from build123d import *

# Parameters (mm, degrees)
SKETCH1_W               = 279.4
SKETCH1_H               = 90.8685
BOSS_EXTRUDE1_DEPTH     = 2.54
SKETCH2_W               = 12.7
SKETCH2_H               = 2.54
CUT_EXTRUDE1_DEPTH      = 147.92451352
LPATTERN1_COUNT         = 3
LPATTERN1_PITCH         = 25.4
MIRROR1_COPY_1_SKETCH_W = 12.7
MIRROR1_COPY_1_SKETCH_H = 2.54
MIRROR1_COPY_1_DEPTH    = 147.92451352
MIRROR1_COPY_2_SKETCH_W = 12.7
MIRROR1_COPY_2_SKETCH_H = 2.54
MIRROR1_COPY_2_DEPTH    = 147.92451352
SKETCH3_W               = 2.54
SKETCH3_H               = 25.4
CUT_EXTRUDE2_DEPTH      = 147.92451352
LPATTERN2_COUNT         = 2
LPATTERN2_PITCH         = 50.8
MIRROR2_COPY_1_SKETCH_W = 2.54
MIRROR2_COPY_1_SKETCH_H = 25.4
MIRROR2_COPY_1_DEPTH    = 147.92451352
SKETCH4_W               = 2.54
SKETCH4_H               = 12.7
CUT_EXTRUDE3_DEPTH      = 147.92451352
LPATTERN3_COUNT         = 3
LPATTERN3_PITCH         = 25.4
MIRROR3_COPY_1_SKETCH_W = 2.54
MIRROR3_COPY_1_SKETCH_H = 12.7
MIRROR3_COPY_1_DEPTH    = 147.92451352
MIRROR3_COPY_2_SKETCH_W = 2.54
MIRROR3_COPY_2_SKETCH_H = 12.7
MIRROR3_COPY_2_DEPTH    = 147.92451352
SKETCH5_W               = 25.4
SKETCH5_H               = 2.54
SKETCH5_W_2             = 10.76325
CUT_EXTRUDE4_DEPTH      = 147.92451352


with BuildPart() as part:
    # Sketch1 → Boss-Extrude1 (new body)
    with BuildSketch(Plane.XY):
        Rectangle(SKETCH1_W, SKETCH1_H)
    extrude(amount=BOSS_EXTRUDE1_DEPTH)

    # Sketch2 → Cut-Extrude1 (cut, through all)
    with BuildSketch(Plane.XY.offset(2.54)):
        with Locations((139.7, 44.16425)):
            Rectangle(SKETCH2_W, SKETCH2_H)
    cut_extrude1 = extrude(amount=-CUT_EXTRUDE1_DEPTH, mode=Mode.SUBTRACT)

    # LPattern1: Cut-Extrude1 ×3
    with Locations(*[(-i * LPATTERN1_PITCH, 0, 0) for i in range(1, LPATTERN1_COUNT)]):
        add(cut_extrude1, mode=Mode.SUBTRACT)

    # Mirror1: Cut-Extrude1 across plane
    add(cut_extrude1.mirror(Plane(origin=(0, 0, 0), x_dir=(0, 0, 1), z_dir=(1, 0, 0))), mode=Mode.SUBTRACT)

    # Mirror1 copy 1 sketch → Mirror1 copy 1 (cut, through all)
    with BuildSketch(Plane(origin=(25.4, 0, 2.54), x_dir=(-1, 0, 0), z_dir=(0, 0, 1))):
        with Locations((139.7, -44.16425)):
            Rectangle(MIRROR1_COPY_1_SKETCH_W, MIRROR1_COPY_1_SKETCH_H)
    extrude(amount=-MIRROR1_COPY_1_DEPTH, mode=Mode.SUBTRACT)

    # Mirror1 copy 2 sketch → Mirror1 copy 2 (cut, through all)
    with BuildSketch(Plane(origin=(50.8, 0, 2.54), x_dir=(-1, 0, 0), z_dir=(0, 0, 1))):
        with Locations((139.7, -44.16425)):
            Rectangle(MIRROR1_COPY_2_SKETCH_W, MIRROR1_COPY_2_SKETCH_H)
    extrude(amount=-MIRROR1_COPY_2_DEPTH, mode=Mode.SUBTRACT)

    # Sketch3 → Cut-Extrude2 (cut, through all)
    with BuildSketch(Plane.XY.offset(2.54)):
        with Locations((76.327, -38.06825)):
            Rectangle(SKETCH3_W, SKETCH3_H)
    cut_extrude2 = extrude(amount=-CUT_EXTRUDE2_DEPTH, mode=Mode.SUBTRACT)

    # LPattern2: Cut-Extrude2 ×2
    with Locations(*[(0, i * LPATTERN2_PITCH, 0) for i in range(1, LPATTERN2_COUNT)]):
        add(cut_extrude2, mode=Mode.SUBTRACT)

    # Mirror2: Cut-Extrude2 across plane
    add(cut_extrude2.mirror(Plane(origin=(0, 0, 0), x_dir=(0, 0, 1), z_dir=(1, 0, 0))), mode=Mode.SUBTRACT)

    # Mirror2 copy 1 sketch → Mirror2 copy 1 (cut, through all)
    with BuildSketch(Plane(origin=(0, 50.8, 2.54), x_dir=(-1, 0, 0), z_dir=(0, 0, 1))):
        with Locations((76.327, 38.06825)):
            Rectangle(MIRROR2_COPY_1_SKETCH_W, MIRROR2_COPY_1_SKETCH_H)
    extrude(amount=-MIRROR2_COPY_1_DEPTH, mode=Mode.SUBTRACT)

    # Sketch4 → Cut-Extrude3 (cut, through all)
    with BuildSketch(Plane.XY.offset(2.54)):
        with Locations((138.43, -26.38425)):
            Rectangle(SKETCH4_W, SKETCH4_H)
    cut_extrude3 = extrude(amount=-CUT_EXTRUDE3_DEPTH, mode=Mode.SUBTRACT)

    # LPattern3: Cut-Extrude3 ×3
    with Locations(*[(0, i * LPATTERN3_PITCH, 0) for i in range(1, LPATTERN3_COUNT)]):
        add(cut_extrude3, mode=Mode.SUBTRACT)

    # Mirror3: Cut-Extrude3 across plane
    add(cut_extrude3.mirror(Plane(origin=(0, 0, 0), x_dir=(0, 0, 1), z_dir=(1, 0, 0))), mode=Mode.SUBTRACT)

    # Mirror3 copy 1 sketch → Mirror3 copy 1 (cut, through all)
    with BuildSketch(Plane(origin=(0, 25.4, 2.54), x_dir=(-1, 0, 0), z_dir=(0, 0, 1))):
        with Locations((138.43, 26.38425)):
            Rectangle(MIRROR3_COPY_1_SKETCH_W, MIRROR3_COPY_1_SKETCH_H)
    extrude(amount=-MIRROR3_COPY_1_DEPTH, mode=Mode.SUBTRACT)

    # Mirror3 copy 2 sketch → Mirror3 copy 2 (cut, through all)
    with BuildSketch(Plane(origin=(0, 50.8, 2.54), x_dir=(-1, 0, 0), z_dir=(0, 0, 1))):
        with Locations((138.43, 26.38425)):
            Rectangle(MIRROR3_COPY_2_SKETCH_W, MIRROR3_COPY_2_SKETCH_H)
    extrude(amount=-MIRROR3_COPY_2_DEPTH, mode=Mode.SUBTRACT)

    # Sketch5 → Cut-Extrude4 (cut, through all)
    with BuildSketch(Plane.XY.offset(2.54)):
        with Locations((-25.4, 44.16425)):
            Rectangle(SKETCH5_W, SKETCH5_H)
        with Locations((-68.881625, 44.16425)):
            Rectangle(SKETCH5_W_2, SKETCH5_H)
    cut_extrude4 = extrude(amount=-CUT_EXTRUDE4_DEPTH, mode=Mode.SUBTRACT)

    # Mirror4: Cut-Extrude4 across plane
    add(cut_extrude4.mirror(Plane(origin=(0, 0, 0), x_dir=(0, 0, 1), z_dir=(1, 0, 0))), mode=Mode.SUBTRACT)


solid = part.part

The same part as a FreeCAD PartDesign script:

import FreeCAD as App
import Part
import Sketcher

V = App.Vector
Q = App.Units.Quantity

doc = App.newDocument("Part")
params = doc.addObject("Spreadsheet::Sheet", "Params")
for row, (alias, value) in enumerate([
    ("sketch1_width", "11 in"),
    ("pad1_length", "0.1 in"),
    ("sketch2_width", "0.5 in"),
    ("sketch2_height", "0.1 in"),
    ("linearpattern_pitch", "1 in"),
    ("sketch3_width", "0.5 in"),
    ("sketch3_height", "0.1 in"),
    ("sketch4_width", "0.5 in"),
    ("sketch4_height", "0.1 in"),
    ("sketch5_height", "1 in"),
    ("sketch5_width", "0.1 in"),
    ("linearpattern2_pitch", "2 in"),
    ("sketch6_height", "1 in"),
    ("sketch6_width", "0.1 in"),
    ("sketch7_width", "0.1 in"),
    ("sketch7_height", "0.5 in"),
    ("linearpattern3_pitch", "1 in"),
    ("sketch8_width", "0.1 in"),
    ("sketch8_height", "0.5 in"),
    ("sketch9_width", "0.1 in"),
    ("sketch9_height", "0.5 in"),
    ("sketch10_width", "1 in"),
    ("sketch10_height", "0.1 in"),
], start=1):
    params.set(f"A{row}", alias)
    params.set(f"B{row}", "=" + value)
    params.setAlias(f"B{row}", alias)

body = doc.addObject("PartDesign::Body", "Body")

# Sketch on XY plane
sketch1 = body.newObject("Sketcher::SketchObject", "Sketch")
sketch1.AttachmentSupport = (doc.getObject("XY_Plane"), [""])
sketch1.MapMode = "FlatFace"
sketch1.addGeometry(Part.LineSegment(V(-140, 45, 0), V(-140, -45, 0)), False)
sketch1.addGeometry(Part.LineSegment(V(-140, -45, 0), V(140, -45, 0)), False)
sketch1.addGeometry(Part.LineSegment(V(140, -45, 0), V(140, 45, 0)), False)
sketch1.addGeometry(Part.LineSegment(V(140, 45, 0), V(-140, 45, 0)), False)
sketch1.addConstraint(Sketcher.Constraint("Coincident", 0, 2, 1, 1))
sketch1.addConstraint(Sketcher.Constraint("Coincident", 1, 2, 2, 1))
sketch1.addConstraint(Sketcher.Constraint("Coincident", 2, 2, 3, 1))
sketch1.addConstraint(Sketcher.Constraint("Coincident", 3, 2, 0, 1))
sketch1.addConstraint(Sketcher.Constraint("Vertical", 0))
sketch1.addConstraint(Sketcher.Constraint("Horizontal", 1))
sketch1.addConstraint(Sketcher.Constraint("Vertical", 2))
sketch1.addConstraint(Sketcher.Constraint("Horizontal", 3))
sketch1.addConstraint(Sketcher.Constraint("Symmetric", 0, 2, 2, 2, -1, 1))
sketch1.addConstraint(Sketcher.Constraint("DistanceX", 1, 1, 1, 2, Q("11 in")))
sketch1.addConstraint(Sketcher.Constraint("DistanceY", 0, 2, 0, 1, Q("3.5775 in")))
sketch1.setExpression("Constraints[9]", "Params.sketch1_width")
pad1 = body.newObject("PartDesign::Pad", "Pad")
pad1.Profile = sketch1
pad1.setExpression("Length", "Params.pad1_length")

# Sketch on XY plane
sketch2 = body.newObject("Sketcher::SketchObject", "Sketch001")
sketch2.AttachmentSupport = (doc.getObject("XY_Plane"), [""])
sketch2.MapMode = "FlatFace"
sketch2.AttachmentOffset = App.Placement(V(0, 0, 0.1 * 25.4), App.Rotation())
sketch2.addGeometry(Part.LineSegment(V(133.3, 45.4, 0), V(133.3, 42.9, 0)), False)
sketch2.addGeometry(Part.LineSegment(V(133.3, 42.9, 0), V(146.1, 42.9, 0)), False)
sketch2.addGeometry(Part.LineSegment(V(146.1, 42.9, 0), V(146.1, 45.4, 0)), False)
sketch2.addGeometry(Part.LineSegment(V(146.1, 45.4, 0), V(133.3, 45.4, 0)), False)
sketch2.addConstraint(Sketcher.Constraint("Coincident", 0, 2, 1, 1))
sketch2.addConstraint(Sketcher.Constraint("Coincident", 1, 2, 2, 1))
sketch2.addConstraint(Sketcher.Constraint("Coincident", 2, 2, 3, 1))
sketch2.addConstraint(Sketcher.Constraint("Coincident", 3, 2, 0, 1))
sketch2.addConstraint(Sketcher.Constraint("Vertical", 0))
sketch2.addConstraint(Sketcher.Constraint("Horizontal", 1))
sketch2.addConstraint(Sketcher.Constraint("Vertical", 2))
sketch2.addConstraint(Sketcher.Constraint("Horizontal", 3))
sketch2.addConstraint(Sketcher.Constraint("DistanceX", 1, 1, 1, 2, Q("0.5 in")))
sketch2.addConstraint(Sketcher.Constraint("DistanceY", 0, 2, 0, 1, Q("0.1 in")))
sketch2.addConstraint(Sketcher.Constraint("DistanceX", -1, 1, 0, 2, Q("5.25 in")))
sketch2.addConstraint(Sketcher.Constraint("DistanceY", -1, 1, 0, 2, Q("42.89425 mm")))
sketch2.setExpression("Constraints[8]", "Params.sketch2_width")
sketch2.setExpression("Constraints[9]", "Params.sketch2_height")
pocket1 = body.newObject("PartDesign::Pocket", "Pocket")
pocket1.Profile = sketch2
pocket1.Type = "ThroughAll"
doc.recompute()

linearpattern = body.newObject("PartDesign::LinearPattern", "LinearPattern")
linearpattern.Originals = [pocket1]
linearpattern.Direction = (doc.getObject("X_Axis"), [""])
linearpattern.Mode = "offset"
linearpattern.setExpression("Offset", "Params.linearpattern_pitch")
linearpattern.Occurrences = 3
linearpattern.Reversed = True
body.Tip = linearpattern
doc.recompute()

mirrored = body.newObject("PartDesign::Mirrored", "Mirrored")
mirrored.Originals = [pocket1]
mirrored.MirrorPlane = (doc.getObject("YZ_Plane"), [""])
body.Tip = mirrored

# Sketch on XY plane
sketch3 = body.newObject("Sketcher::SketchObject", "Sketch002")
sketch3.AttachmentSupport = (doc.getObject("XY_Plane"), [""])
sketch3.MapMode = "FlatFace"
sketch3.AttachmentOffset = App.Placement(V(0, 0, 0.1 * 25.4), App.Rotation())
sketch3.addGeometry(Part.LineSegment(V(-108, 42.9, 0), V(-108, 45.4, 0)), False)
sketch3.addGeometry(Part.LineSegment(V(-108, 45.4, 0), V(-120.7, 45.4, 0)), False)
sketch3.addGeometry(Part.LineSegment(V(-120.7, 45.4, 0), V(-120.7, 42.9, 0)), False)
sketch3.addGeometry(Part.LineSegment(V(-120.7, 42.9, 0), V(-108, 42.9, 0)), False)
sketch3.addConstraint(Sketcher.Constraint("Coincident", 0, 2, 1, 1))
sketch3.addConstraint(Sketcher.Constraint("Coincident", 1, 2, 2, 1))
sketch3.addConstraint(Sketcher.Constraint("Coincident", 2, 2, 3, 1))
sketch3.addConstraint(Sketcher.Constraint("Coincident", 3, 2, 0, 1))
sketch3.addConstraint(Sketcher.Constraint("Vertical", 0))
sketch3.addConstraint(Sketcher.Constraint("Horizontal", 1))
sketch3.addConstraint(Sketcher.Constraint("Vertical", 2))
sketch3.addConstraint(Sketcher.Constraint("Horizontal", 3))
sketch3.addConstraint(Sketcher.Constraint("DistanceX", 1, 2, 1, 1, Q("0.5 in")))
sketch3.addConstraint(Sketcher.Constraint("DistanceY", 0, 1, 0, 2, Q("0.1 in")))
sketch3.addConstraint(Sketcher.Constraint("DistanceX", 0, 2, -1, 1, Q("4.25 in")))
sketch3.addConstraint(Sketcher.Constraint("DistanceY", -1, 1, 0, 2, Q("45.43425 mm")))
sketch3.setExpression("Constraints[8]", "Params.sketch3_width")
sketch3.setExpression("Constraints[9]", "Params.sketch3_height")
pocket2 = body.newObject("PartDesign::Pocket", "Pocket001")
pocket2.Profile = sketch3
pocket2.Type = "ThroughAll"

# Sketch on XY plane
sketch4 = body.newObject("Sketcher::SketchObject", "Sketch003")
sketch4.AttachmentSupport = (doc.getObject("XY_Plane"), [""])
sketch4.MapMode = "FlatFace"
sketch4.AttachmentOffset = App.Placement(V(0, 0, 0.1 * 25.4), App.Rotation())
sketch4.addGeometry(Part.LineSegment(V(-82.5, 42.9, 0), V(-82.5, 45.4, 0)), False)
sketch4.addGeometry(Part.LineSegment(V(-82.5, 45.4, 0), V(-95.2, 45.4, 0)), False)
sketch4.addGeometry(Part.LineSegment(V(-95.2, 45.4, 0), V(-95.2, 42.9, 0)), False)
sketch4.addGeometry(Part.LineSegment(V(-95.2, 42.9, 0), V(-82.5, 42.9, 0)), False)
sketch4.addConstraint(Sketcher.Constraint("Coincident", 0, 2, 1, 1))
sketch4.addConstraint(Sketcher.Constraint("Coincident", 1, 2, 2, 1))
sketch4.addConstraint(Sketcher.Constraint("Coincident", 2, 2, 3, 1))
sketch4.addConstraint(Sketcher.Constraint("Coincident", 3, 2, 0, 1))
sketch4.addConstraint(Sketcher.Constraint("Vertical", 0))
sketch4.addConstraint(Sketcher.Constraint("Horizontal", 1))
sketch4.addConstraint(Sketcher.Constraint("Vertical", 2))
sketch4.addConstraint(Sketcher.Constraint("Horizontal", 3))
sketch4.addConstraint(Sketcher.Constraint("DistanceX", 1, 2, 1, 1, Q("0.5 in")))
sketch4.addConstraint(Sketcher.Constraint("DistanceY", 0, 1, 0, 2, Q("0.1 in")))
sketch4.addConstraint(Sketcher.Constraint("DistanceX", 0, 2, -1, 1, Q("3.25 in")))
sketch4.addConstraint(Sketcher.Constraint("DistanceY", -1, 1, 0, 2, Q("45.43425 mm")))
sketch4.setExpression("Constraints[8]", "Params.sketch4_width")
sketch4.setExpression("Constraints[9]", "Params.sketch4_height")
pocket3 = body.newObject("PartDesign::Pocket", "Pocket002")
pocket3.Profile = sketch4
pocket3.Type = "ThroughAll"

# Sketch on XY plane
sketch5 = body.newObject("Sketcher::SketchObject", "Sketch004")
sketch5.AttachmentSupport = (doc.getObject("XY_Plane"), [""])
sketch5.MapMode = "FlatFace"
sketch5.AttachmentOffset = App.Placement(V(0, 0, 0.1 * 25.4), App.Rotation())
sketch5.addGeometry(Part.LineSegment(V(75.1, -25.4, 0), V(75.1, -50.8, 0)), False)
sketch5.addGeometry(Part.LineSegment(V(75.1, -50.8, 0), V(77.6, -50.8, 0)), False)
sketch5.addGeometry(Part.LineSegment(V(77.6, -50.8, 0), V(77.6, -25.4, 0)), False)
sketch5.addGeometry(Part.LineSegment(V(77.6, -25.4, 0), V(75.1, -25.4, 0)), False)
sketch5.addConstraint(Sketcher.Constraint("Coincident", 0, 2, 1, 1))
sketch5.addConstraint(Sketcher.Constraint("Coincident", 1, 2, 2, 1))
sketch5.addConstraint(Sketcher.Constraint("Coincident", 2, 2, 3, 1))
sketch5.addConstraint(Sketcher.Constraint("Coincident", 3, 2, 0, 1))
sketch5.addConstraint(Sketcher.Constraint("Vertical", 0))
sketch5.addConstraint(Sketcher.Constraint("Horizontal", 1))
sketch5.addConstraint(Sketcher.Constraint("Vertical", 2))
sketch5.addConstraint(Sketcher.Constraint("Horizontal", 3))
sketch5.addConstraint(Sketcher.Constraint("DistanceY", 0, 2, 0, 1, Q("1 in")))
sketch5.addConstraint(Sketcher.Constraint("DistanceX", 1, 1, 1, 2, Q("0.1 in")))
sketch5.addConstraint(Sketcher.Constraint("DistanceX", -1, 1, 0, 2, Q("2.955 in")))
sketch5.addConstraint(Sketcher.Constraint("DistanceY", 0, 2, -1, 1, Q("50.76825 mm")))
sketch5.setExpression("Constraints[8]", "Params.sketch5_height")
sketch5.setExpression("Constraints[9]", "Params.sketch5_width")
pocket4 = body.newObject("PartDesign::Pocket", "Pocket003")
pocket4.Profile = sketch5
pocket4.Type = "ThroughAll"
doc.recompute()

linearpattern2 = body.newObject("PartDesign::LinearPattern", "LinearPattern001")
linearpattern2.Originals = [pocket4]
linearpattern2.Direction = (doc.getObject("Y_Axis"), [""])
linearpattern2.Mode = "offset"
linearpattern2.setExpression("Offset", "Params.linearpattern2_pitch")
linearpattern2.Occurrences = 2
body.Tip = linearpattern2
doc.recompute()

mirrored2 = body.newObject("PartDesign::Mirrored", "Mirrored001")
mirrored2.Originals = [pocket4]
mirrored2.MirrorPlane = (doc.getObject("YZ_Plane"), [""])
body.Tip = mirrored2

# Sketch on XY plane
sketch6 = body.newObject("Sketcher::SketchObject", "Sketch005")
sketch6.AttachmentSupport = (doc.getObject("XY_Plane"), [""])
sketch6.MapMode = "FlatFace"
sketch6.AttachmentOffset = App.Placement(V(0, 0, 0.1 * 25.4), App.Rotation())
sketch6.addGeometry(Part.LineSegment(V(-75.1, 0, 0), V(-75.1, 25.4, 0)), False)
sketch6.addGeometry(Part.LineSegment(V(-75.1, 25.4, 0), V(-77.6, 25.4, 0)), False)
sketch6.addGeometry(Part.LineSegment(V(-77.6, 25.4, 0), V(-77.6, 0, 0)), False)
sketch6.addGeometry(Part.LineSegment(V(-77.6, 0, 0), V(-75.1, 0, 0)), False)
sketch6.addConstraint(Sketcher.Constraint("Coincident", 0, 2, 1, 1))
sketch6.addConstraint(Sketcher.Constraint("Coincident", 1, 2, 2, 1))
sketch6.addConstraint(Sketcher.Constraint("Coincident", 2, 2, 3, 1))
sketch6.addConstraint(Sketcher.Constraint("Coincident", 3, 2, 0, 1))
sketch6.addConstraint(Sketcher.Constraint("Vertical", 0))
sketch6.addConstraint(Sketcher.Constraint("Horizontal", 1))
sketch6.addConstraint(Sketcher.Constraint("Vertical", 2))
sketch6.addConstraint(Sketcher.Constraint("Horizontal", 3))
sketch6.addConstraint(Sketcher.Constraint("DistanceY", 0, 1, 0, 2, Q("1 in")))
sketch6.addConstraint(Sketcher.Constraint("DistanceX", 1, 2, 1, 1, Q("0.1 in")))
sketch6.addConstraint(Sketcher.Constraint("DistanceX", 0, 2, -1, 1, Q("2.955 in")))
sketch6.addConstraint(Sketcher.Constraint("DistanceY", -1, 1, 0, 2, Q("25.43175 mm")))
sketch6.setExpression("Constraints[8]", "Params.sketch6_height")
sketch6.setExpression("Constraints[9]", "Params.sketch6_width")
pocket5 = body.newObject("PartDesign::Pocket", "Pocket004")
pocket5.Profile = sketch6
pocket5.Type = "ThroughAll"

# Sketch on XY plane
sketch7 = body.newObject("Sketcher::SketchObject", "Sketch006")
sketch7.AttachmentSupport = (doc.getObject("XY_Plane"), [""])
sketch7.MapMode = "FlatFace"
sketch7.AttachmentOffset = App.Placement(V(0, 0, 0.1 * 25.4), App.Rotation())
sketch7.addGeometry(Part.LineSegment(V(137.2, -20, 0), V(137.2, -32.7, 0)), False)
sketch7.addGeometry(Part.LineSegment(V(137.2, -32.7, 0), V(139.7, -32.7, 0)), False)
sketch7.addGeometry(Part.LineSegment(V(139.7, -32.7, 0), V(139.7, -20, 0)), False)
sketch7.addGeometry(Part.LineSegment(V(139.7, -20, 0), V(137.2, -20, 0)), False)
sketch7.addConstraint(Sketcher.Constraint("Coincident", 0, 2, 1, 1))
sketch7.addConstraint(Sketcher.Constraint("Coincident", 1, 2, 2, 1))
sketch7.addConstraint(Sketcher.Constraint("Coincident", 2, 2, 3, 1))
sketch7.addConstraint(Sketcher.Constraint("Coincident", 3, 2, 0, 1))
sketch7.addConstraint(Sketcher.Constraint("Vertical", 0))
sketch7.addConstraint(Sketcher.Constraint("Horizontal", 1))
sketch7.addConstraint(Sketcher.Constraint("Vertical", 2))
sketch7.addConstraint(Sketcher.Constraint("Horizontal", 3))
sketch7.addConstraint(Sketcher.Constraint("DistanceX", 1, 1, 1, 2, Q("0.1 in")))
sketch7.addConstraint(Sketcher.Constraint("DistanceY", 0, 2, 0, 1, Q("0.5 in")))
sketch7.addConstraint(Sketcher.Constraint("DistanceX", -1, 1, 0, 2, Q("5.4 in")))
sketch7.addConstraint(Sketcher.Constraint("DistanceY", 0, 2, -1, 1, Q("32.73425 mm")))
sketch7.setExpression("Constraints[8]", "Params.sketch7_width")
sketch7.setExpression("Constraints[9]", "Params.sketch7_height")
pocket6 = body.newObject("PartDesign::Pocket", "Pocket005")
pocket6.Profile = sketch7
pocket6.Type = "ThroughAll"
doc.recompute()

linearpattern3 = body.newObject("PartDesign::LinearPattern", "LinearPattern002")
linearpattern3.Originals = [pocket6]
linearpattern3.Direction = (doc.getObject("Y_Axis"), [""])
linearpattern3.Mode = "offset"
linearpattern3.setExpression("Offset", "Params.linearpattern3_pitch")
linearpattern3.Occurrences = 3
body.Tip = linearpattern3
doc.recompute()

mirrored3 = body.newObject("PartDesign::Mirrored", "Mirrored002")
mirrored3.Originals = [pocket6]
mirrored3.MirrorPlane = (doc.getObject("YZ_Plane"), [""])
body.Tip = mirrored3

# Sketch on XY plane
sketch8 = body.newObject("Sketcher::SketchObject", "Sketch007")
sketch8.AttachmentSupport = (doc.getObject("XY_Plane"), [""])
sketch8.MapMode = "FlatFace"
sketch8.AttachmentOffset = App.Placement(V(0, 0, 0.1 * 25.4), App.Rotation())
sketch8.addGeometry(Part.LineSegment(V(-137.2, -7.3, 0), V(-137.2, 5.4, 0)), False)
sketch8.addGeometry(Part.LineSegment(V(-137.2, 5.4, 0), V(-139.7, 5.4, 0)), False)
sketch8.addGeometry(Part.LineSegment(V(-139.7, 5.4, 0), V(-139.7, -7.3, 0)), False)
sketch8.addGeometry(Part.LineSegment(V(-139.7, -7.3, 0), V(-137.2, -7.3, 0)), False)
sketch8.addConstraint(Sketcher.Constraint("Coincident", 0, 2, 1, 1))
sketch8.addConstraint(Sketcher.Constraint("Coincident", 1, 2, 2, 1))
sketch8.addConstraint(Sketcher.Constraint("Coincident", 2, 2, 3, 1))
sketch8.addConstraint(Sketcher.Constraint("Coincident", 3, 2, 0, 1))
sketch8.addConstraint(Sketcher.Constraint("Vertical", 0))
sketch8.addConstraint(Sketcher.Constraint("Horizontal", 1))
sketch8.addConstraint(Sketcher.Constraint("Vertical", 2))
sketch8.addConstraint(Sketcher.Constraint("Horizontal", 3))
sketch8.addConstraint(Sketcher.Constraint("DistanceX", 1, 2, 1, 1, Q("0.1 in")))
sketch8.addConstraint(Sketcher.Constraint("DistanceY", 0, 1, 0, 2, Q("0.5 in")))
sketch8.addConstraint(Sketcher.Constraint("DistanceX", 0, 2, -1, 1, Q("5.4 in")))
sketch8.addConstraint(Sketcher.Constraint("DistanceY", -1, 1, 0, 2, Q("5.36575 mm")))
sketch8.setExpression("Constraints[8]", "Params.sketch8_width")
sketch8.setExpression("Constraints[9]", "Params.sketch8_height")
pocket7 = body.newObject("PartDesign::Pocket", "Pocket006")
pocket7.Profile = sketch8
pocket7.Type = "ThroughAll"

# Sketch on XY plane
sketch9 = body.newObject("Sketcher::SketchObject", "Sketch008")
sketch9.AttachmentSupport = (doc.getObject("XY_Plane"), [""])
sketch9.MapMode = "FlatFace"
sketch9.AttachmentOffset = App.Placement(V(0, 0, 0.1 * 25.4), App.Rotation())
sketch9.addGeometry(Part.LineSegment(V(-137.2, 18.1, 0), V(-137.2, 30.8, 0)), False)
sketch9.addGeometry(Part.LineSegment(V(-137.2, 30.8, 0), V(-139.7, 30.8, 0)), False)
sketch9.addGeometry(Part.LineSegment(V(-139.7, 30.8, 0), V(-139.7, 18.1, 0)), False)
sketch9.addGeometry(Part.LineSegment(V(-139.7, 18.1, 0), V(-137.2, 18.1, 0)), False)
sketch9.addConstraint(Sketcher.Constraint("Coincident", 0, 2, 1, 1))
sketch9.addConstraint(Sketcher.Constraint("Coincident", 1, 2, 2, 1))
sketch9.addConstraint(Sketcher.Constraint("Coincident", 2, 2, 3, 1))
sketch9.addConstraint(Sketcher.Constraint("Coincident", 3, 2, 0, 1))
sketch9.addConstraint(Sketcher.Constraint("Vertical", 0))
sketch9.addConstraint(Sketcher.Constraint("Horizontal", 1))
sketch9.addConstraint(Sketcher.Constraint("Vertical", 2))
sketch9.addConstraint(Sketcher.Constraint("Horizontal", 3))
sketch9.addConstraint(Sketcher.Constraint("DistanceX", 1, 2, 1, 1, Q("0.1 in")))
sketch9.addConstraint(Sketcher.Constraint("DistanceY", 0, 1, 0, 2, Q("0.5 in")))
sketch9.addConstraint(Sketcher.Constraint("DistanceX", 0, 2, -1, 1, Q("5.4 in")))
sketch9.addConstraint(Sketcher.Constraint("DistanceY", -1, 1, 0, 2, Q("30.76575 mm")))
sketch9.setExpression("Constraints[8]", "Params.sketch9_width")
sketch9.setExpression("Constraints[9]", "Params.sketch9_height")
pocket8 = body.newObject("PartDesign::Pocket", "Pocket007")
pocket8.Profile = sketch9
pocket8.Type = "ThroughAll"

# Sketch on XY plane
sketch10 = body.newObject("Sketcher::SketchObject", "Sketch009")
sketch10.AttachmentSupport = (doc.getObject("XY_Plane"), [""])
sketch10.MapMode = "FlatFace"
sketch10.AttachmentOffset = App.Placement(V(0, 0, 0.1 * 25.4), App.Rotation())
sketch10.addGeometry(Part.LineSegment(V(-38.1, 45.4, 0), V(-38.1, 42.9, 0)), False)
sketch10.addGeometry(Part.LineSegment(V(-38.1, 42.9, 0), V(-12.7, 42.9, 0)), False)
sketch10.addGeometry(Part.LineSegment(V(-12.7, 42.9, 0), V(-12.7, 45.4, 0)), False)
sketch10.addGeometry(Part.LineSegment(V(-12.7, 45.4, 0), V(-38.1, 45.4, 0)), False)
sketch10.addGeometry(Part.LineSegment(V(-74.3, 45.4, 0), V(-74.3, 42.9, 0)), False)
sketch10.addGeometry(Part.LineSegment(V(-74.3, 42.9, 0), V(-63.5, 42.9, 0)), False)
sketch10.addGeometry(Part.LineSegment(V(-63.5, 42.9, 0), V(-63.5, 45.4, 0)), False)
sketch10.addGeometry(Part.LineSegment(V(-63.5, 45.4, 0), V(-74.3, 45.4, 0)), False)
sketch10.addConstraint(Sketcher.Constraint("Coincident", 0, 2, 1, 1))
sketch10.addConstraint(Sketcher.Constraint("Coincident", 1, 2, 2, 1))
sketch10.addConstraint(Sketcher.Constraint("Coincident", 2, 2, 3, 1))
sketch10.addConstraint(Sketcher.Constraint("Coincident", 3, 2, 0, 1))
sketch10.addConstraint(Sketcher.Constraint("Coincident", 4, 2, 5, 1))
sketch10.addConstraint(Sketcher.Constraint("Coincident", 5, 2, 6, 1))
sketch10.addConstraint(Sketcher.Constraint("Coincident", 6, 2, 7, 1))
sketch10.addConstraint(Sketcher.Constraint("Coincident", 7, 2, 4, 1))
sketch10.addConstraint(Sketcher.Constraint("Vertical", 0))
sketch10.addConstraint(Sketcher.Constraint("Horizontal", 1))
sketch10.addConstraint(Sketcher.Constraint("Vertical", 2))
sketch10.addConstraint(Sketcher.Constraint("Horizontal", 3))
sketch10.addConstraint(Sketcher.Constraint("Vertical", 4))
sketch10.addConstraint(Sketcher.Constraint("Horizontal", 5))
sketch10.addConstraint(Sketcher.Constraint("Vertical", 6))
sketch10.addConstraint(Sketcher.Constraint("Horizontal", 7))
sketch10.addConstraint(Sketcher.Constraint("Horizontal", 1, 2, 4, 2))
sketch10.addConstraint(Sketcher.Constraint("Horizontal", 3, 2, 6, 2))
sketch10.addConstraint(Sketcher.Constraint("DistanceX", 1, 1, 1, 2, Q("1 in")))
sketch10.addConstraint(Sketcher.Constraint("DistanceY", 0, 2, 0, 1, Q("0.1 in")))
sketch10.addConstraint(Sketcher.Constraint("DistanceX", 5, 2, 0, 2, Q("1 in")))
sketch10.addConstraint(Sketcher.Constraint("DistanceX", 0, 2, -1, 1, Q("1.5 in")))
sketch10.addConstraint(Sketcher.Constraint("DistanceX", 5, 1, 5, 2, Q("10.76325 mm")))
sketch10.addConstraint(Sketcher.Constraint("DistanceY", -1, 1, 0, 2, Q("42.89425 mm")))
sketch10.setExpression("Constraints[18]", "Params.sketch10_width")
sketch10.setExpression("Constraints[19]", "Params.sketch10_height")
pocket9 = body.newObject("PartDesign::Pocket", "Pocket008")
pocket9.Profile = sketch10
pocket9.Type = "ThroughAll"
doc.recompute()

mirrored4 = body.newObject("PartDesign::Mirrored", "Mirrored003")
mirrored4.Originals = [pocket9]
mirrored4.MirrorPlane = (doc.getObject("YZ_Plane"), [""])
body.Tip = mirrored4

doc.recompute()
